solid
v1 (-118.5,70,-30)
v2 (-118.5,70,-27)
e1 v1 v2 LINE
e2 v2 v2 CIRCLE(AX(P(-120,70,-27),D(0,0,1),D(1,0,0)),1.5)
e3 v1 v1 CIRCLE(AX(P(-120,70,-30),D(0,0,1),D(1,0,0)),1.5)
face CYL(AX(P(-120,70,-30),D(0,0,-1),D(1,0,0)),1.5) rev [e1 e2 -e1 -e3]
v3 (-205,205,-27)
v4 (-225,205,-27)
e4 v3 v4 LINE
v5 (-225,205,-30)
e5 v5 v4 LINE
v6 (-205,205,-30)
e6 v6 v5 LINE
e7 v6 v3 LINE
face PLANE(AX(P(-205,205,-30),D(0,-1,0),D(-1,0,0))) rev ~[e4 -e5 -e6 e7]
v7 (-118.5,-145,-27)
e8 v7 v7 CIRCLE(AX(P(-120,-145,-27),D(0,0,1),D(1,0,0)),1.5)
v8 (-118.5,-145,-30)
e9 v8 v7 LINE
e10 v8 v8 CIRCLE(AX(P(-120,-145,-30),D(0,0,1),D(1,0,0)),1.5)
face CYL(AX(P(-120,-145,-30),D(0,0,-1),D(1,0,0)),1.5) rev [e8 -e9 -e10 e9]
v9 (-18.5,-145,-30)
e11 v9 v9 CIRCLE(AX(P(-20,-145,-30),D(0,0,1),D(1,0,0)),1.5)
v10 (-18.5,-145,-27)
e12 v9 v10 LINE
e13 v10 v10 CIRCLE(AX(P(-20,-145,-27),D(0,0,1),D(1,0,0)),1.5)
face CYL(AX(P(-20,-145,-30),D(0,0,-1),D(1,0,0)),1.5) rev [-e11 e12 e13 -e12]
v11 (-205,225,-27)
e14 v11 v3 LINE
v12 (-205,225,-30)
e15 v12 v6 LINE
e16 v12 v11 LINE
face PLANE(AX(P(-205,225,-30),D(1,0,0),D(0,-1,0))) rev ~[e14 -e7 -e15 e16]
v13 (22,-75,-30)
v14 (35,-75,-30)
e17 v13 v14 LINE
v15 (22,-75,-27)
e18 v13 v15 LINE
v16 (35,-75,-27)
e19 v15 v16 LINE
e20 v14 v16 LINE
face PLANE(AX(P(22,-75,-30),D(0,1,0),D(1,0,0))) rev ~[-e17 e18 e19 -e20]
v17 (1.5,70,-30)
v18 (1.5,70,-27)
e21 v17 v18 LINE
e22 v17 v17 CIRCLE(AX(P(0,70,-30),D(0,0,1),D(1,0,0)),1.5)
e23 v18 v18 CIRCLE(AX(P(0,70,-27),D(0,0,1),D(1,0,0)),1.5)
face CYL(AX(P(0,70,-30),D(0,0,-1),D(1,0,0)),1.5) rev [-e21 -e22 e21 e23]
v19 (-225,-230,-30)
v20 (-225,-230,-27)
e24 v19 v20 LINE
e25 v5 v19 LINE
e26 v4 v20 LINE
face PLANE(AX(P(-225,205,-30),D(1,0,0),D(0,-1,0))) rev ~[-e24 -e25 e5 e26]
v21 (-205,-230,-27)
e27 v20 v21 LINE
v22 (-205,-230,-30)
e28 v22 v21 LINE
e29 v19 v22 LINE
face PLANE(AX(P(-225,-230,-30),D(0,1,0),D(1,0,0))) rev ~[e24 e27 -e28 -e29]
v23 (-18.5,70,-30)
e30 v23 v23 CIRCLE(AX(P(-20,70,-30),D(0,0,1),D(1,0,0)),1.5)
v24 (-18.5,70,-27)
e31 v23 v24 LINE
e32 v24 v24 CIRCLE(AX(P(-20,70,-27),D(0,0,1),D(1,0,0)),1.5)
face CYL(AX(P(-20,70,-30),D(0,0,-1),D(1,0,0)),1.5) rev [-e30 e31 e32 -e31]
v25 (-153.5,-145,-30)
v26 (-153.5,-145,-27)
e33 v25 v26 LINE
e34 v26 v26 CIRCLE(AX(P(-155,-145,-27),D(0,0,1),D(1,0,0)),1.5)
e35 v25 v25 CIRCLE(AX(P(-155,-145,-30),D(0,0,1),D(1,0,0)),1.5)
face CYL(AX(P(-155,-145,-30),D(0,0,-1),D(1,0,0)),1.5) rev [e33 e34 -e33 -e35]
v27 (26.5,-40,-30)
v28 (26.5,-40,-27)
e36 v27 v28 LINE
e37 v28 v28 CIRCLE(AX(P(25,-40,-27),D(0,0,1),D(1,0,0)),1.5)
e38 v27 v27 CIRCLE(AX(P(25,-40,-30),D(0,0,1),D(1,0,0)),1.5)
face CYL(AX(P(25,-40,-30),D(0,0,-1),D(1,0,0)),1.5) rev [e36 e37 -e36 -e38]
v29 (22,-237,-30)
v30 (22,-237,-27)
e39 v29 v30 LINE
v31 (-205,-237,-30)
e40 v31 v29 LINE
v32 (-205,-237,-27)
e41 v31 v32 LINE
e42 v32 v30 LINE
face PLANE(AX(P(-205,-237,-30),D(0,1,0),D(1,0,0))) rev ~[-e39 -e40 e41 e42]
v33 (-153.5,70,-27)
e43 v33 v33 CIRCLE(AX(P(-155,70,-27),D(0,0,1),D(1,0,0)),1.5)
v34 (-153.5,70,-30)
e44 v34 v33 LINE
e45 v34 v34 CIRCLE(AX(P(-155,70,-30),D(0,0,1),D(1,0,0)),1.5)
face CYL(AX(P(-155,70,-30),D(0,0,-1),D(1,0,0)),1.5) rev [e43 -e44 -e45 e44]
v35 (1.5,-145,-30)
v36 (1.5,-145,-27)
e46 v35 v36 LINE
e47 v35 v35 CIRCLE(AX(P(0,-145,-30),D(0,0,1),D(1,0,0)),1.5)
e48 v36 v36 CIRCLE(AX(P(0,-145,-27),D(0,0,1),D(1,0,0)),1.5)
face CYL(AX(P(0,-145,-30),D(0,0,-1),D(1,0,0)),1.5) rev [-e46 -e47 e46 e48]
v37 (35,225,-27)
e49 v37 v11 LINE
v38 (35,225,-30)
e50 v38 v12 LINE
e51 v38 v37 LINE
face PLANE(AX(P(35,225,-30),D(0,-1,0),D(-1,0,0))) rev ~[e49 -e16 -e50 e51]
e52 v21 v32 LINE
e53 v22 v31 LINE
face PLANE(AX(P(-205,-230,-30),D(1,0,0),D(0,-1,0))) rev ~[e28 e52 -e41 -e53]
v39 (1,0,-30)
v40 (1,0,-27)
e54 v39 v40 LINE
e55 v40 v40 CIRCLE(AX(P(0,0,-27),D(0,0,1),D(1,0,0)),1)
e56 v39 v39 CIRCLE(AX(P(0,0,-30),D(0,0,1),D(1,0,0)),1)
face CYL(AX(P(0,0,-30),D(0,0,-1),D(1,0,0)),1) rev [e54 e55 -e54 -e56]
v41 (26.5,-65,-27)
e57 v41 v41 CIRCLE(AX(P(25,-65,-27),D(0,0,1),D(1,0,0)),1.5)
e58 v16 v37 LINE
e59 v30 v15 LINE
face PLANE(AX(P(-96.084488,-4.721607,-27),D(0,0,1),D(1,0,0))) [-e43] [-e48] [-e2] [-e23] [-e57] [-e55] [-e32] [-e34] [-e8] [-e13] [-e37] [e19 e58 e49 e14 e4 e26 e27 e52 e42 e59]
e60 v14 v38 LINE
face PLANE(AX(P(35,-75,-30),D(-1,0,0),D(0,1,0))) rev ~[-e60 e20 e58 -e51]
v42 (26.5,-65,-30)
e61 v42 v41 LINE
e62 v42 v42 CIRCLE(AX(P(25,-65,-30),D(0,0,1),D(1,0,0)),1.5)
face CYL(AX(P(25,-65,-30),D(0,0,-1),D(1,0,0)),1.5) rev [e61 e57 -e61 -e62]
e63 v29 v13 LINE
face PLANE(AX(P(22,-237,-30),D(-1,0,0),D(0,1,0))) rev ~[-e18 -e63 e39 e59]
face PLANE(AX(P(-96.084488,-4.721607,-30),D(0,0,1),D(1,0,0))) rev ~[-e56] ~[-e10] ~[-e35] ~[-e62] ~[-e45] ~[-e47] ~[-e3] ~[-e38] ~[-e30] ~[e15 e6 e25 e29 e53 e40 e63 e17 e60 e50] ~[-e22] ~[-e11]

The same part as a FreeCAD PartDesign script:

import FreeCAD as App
import Part
import Sketcher
from FreeCAD import Vector

doc = App.newDocument("Part")
body = doc.addObject("PartDesign::Body", "Body")

# Sketch on XY plane
sketch1 = body.newObject("Sketcher::SketchObject", "Sketch")
sketch1.AttachmentSupport = (doc.getObject("XY_Plane"), [""])
sketch1.MapMode = "FlatFace"
sketch1.addGeometry(Part.LineSegment(Vector(-205, -237, 0), Vector(22, -237, 0)), False)
sketch1.addGeometry(Part.LineSegment(Vector(22, -237, 0), Vector(22, -75, 0)), False)
sketch1.addGeometry(Part.LineSegment(Vector(22, -75, 0), Vector(35, -75, 0)), False)
sketch1.addGeometry(Part.LineSegment(Vector(35, -75, 0), Vector(35, 225, 0)), False)
sketch1.addGeometry(Part.LineSegment(Vector(35, 225, 0), Vector(-205, 225, 0)), False)
sketch1.addGeometry(Part.LineSegment(Vector(-205, 225, 0), Vector(-205, 205, 0)), False)
sketch1.addGeometry(Part.LineSegment(Vector(-205, 205, 0), Vector(-225, 205, 0)), False)
sketch1.addGeometry(Part.LineSegment(Vector(-225, 205, 0), Vector(-225, -230, 0)), False)
sketch1.addGeometry(Part.LineSegment(Vector(-225, -230, 0), Vector(-205, -230, 0)), False)
sketch1.addGeometry(Part.LineSegment(Vector(-205, -230, 0), Vector(-205, -237, 0)), False)
sketch1.addGeometry(Part.Circle(Vector(-155, -145, 0), Vector(0, 0, 1), 1.5), False)
sketch1.addGeometry(Part.Circle(Vector(-120, -145, 0), Vector(0, 0, 1), 1.5), False)
sketch1.addGeometry(Part.Circle(Vector(-20, -145, 0), Vector(0, 0, 1), 1.5), False)
sketch1.addGeometry(Part.Circle(Vector(0, -145, 0), Vector(0, 0, 1), 1.5), False)
sketch1.addGeometry(Part.Circle(Vector(25, -65, 0), Vector(0, 0, 1), 1.5), False)
sketch1.addGeometry(Part.Circle(Vector(25, -40, 0), Vector(0, 0, 1), 1.5), False)
sketch1.addGeometry(Part.Circle(Vector(-155, 70, 0), Vector(0, 0, 1), 1.5), False)
sketch1.addGeometry(Part.Circle(Vector(-120, 70, 0), Vector(0, 0, 1), 1.5), False)
sketch1.addGeometry(Part.Circle(Vector(0, 0, 0), Vector(0, 0, 1), 1), False)
sketch1.addGeometry(Part.Circle(Vector(-20, 70, 0), Vector(0, 0, 1), 1.5), False)
sketch1.addGeometry(Part.Circle(Vector(0, 70, 0), Vector(0, 0, 1), 1.5), False)
sketch1.addConstraint(Sketcher.Constraint("Coincident", 0, 2, 1, 1))
sketch1.addConstraint(Sketcher.Constraint("Coincident", 1, 2, 2, 1))
sketch1.addConstraint(Sketcher.Constraint("Coincident", 2, 2, 3, 1))
sketch1.addConstraint(Sketcher.Constraint("Coincident", 3, 2, 4, 1))
sketch1.addConstraint(Sketcher.Constraint("Coincident", 4, 2, 5, 1))
sketch1.addConstraint(Sketcher.Constraint("Coincident", 5, 2, 6, 1))
sketch1.addConstraint(Sketcher.Constraint("Coincident", 6, 2, 7, 1))
sketch1.addConstraint(Sketcher.Constraint("Coincident", 7, 2, 8, 1))
sketch1.addConstraint(Sketcher.Constraint("Coincident", 8, 2, 9, 1))
sketch1.addConstraint(Sketcher.Constraint("Coincident", 9, 2, 0, 1))
sketch1.addConstraint(Sketcher.Constraint("Horizontal", 0))
sketch1.addConstraint(Sketcher.Constraint("Vertical", 1))
sketch1.addConstraint(Sketcher.Constraint("Horizontal", 2))
sketch1.addConstraint(Sketcher.Constraint("Vertical", 3))
sketch1.addConstraint(Sketcher.Constraint("Horizontal", 4))
sketch1.addConstraint(Sketcher.Constraint("Vertical", 5))
sketch1.addConstraint(Sketcher.Constraint("Horizontal", 6))
sketch1.addConstraint(Sketcher.Constraint("Vertical", 7))
sketch1.addConstraint(Sketcher.Constraint("Horizontal", 8))
sketch1.addConstraint(Sketcher.Constraint("Vertical", 9))
sketch1.addConstraint(Sketcher.Constraint("Coincident", 18, 3, -1, 1))
sketch1.addConstraint(Sketcher.Constraint("Equal", 10, 11))
sketch1.addConstraint(Sketcher.Constraint("Equal", 11, 12))
sketch1.addConstraint(Sketcher.Constraint("Equal", 12, 13))
sketch1.addConstraint(Sketcher.Constraint("Equal", 13, 14))
sketch1.addConstraint(Sketcher.Constraint("Equal", 14, 15))
sketch1.addConstraint(Sketcher.Constraint("Equal", 15, 16))
sketch1.addConstraint(Sketcher.Constraint("Equal", 16, 17))
sketch1.addConstraint(Sketcher.Constraint("Equal", 17, 19))
sketch1.addConstraint(Sketcher.Constraint("Equal", 19, 20))
sketch1.addConstraint(Sketcher.Constraint("PointOnObject", 13, 3, -2))
sketch1.addConstraint(Sketcher.Constraint("PointOnObject", 20, 3, -2))
sketch1.addConstraint(Sketcher.Constraint("Horizontal", 10, 3, 11, 3))
sketch1.addConstraint(Sketcher.Constraint("Horizontal", 11, 3, 12, 3))
sketch1.addConstraint(Sketcher.Constraint("Horizontal", 12, 3, 13, 3))
sketch1.addConstraint(Sketcher.Constraint("Horizontal", 16, 3, 17, 3))
sketch1.addConstraint(Sketcher.Constraint("Horizontal", 17, 3, 19, 3))
sketch1.addConstraint(Sketcher.Constraint("Horizontal", 19, 3, 20, 3))
sketch1.addConstraint(Sketcher.Constraint("Vertical", 14, 3, 15, 3))
sketch1.addConstraint(Sketcher.Constraint("Vertical", 10, 3, 16, 3))
sketch1.addConstraint(Sketcher.Constraint("Vertical", 11, 3, 17, 3))
sketch1.addConstraint(Sketcher.Constraint("Vertical", 12, 3, 19, 3))
sketch1.addConstraint(Sketcher.Constraint("Vertical", 5, 2, 8, 2))
sketch1.addConstraint(Sketcher.Constraint("Equal", 8, 5))
sketch1.addConstraint(Sketcher.Constraint("Diameter", 10, 3.0))
sketch1.addConstraint(Sketcher.Constraint("Diameter", 18, 2.0))
sketch1.addConstraint(Sketcher.Constraint("DistanceX", 0, 1, 0, 2, 227.0))
sketch1.addConstraint(Sketcher.Constraint("DistanceX", 2, 1, 2, 2, 13.0))
sketch1.addConstraint(Sketcher.Constraint("DistanceX", 6, 2, 6, 1, 20.0))
sketch1.addConstraint(Sketcher.Constraint("DistanceY", 1, 1, 1, 2, 162.0))
sketch1.addConstraint(Sketcher.Constraint("DistanceY", 3, 1, 3, 2, 300.0))
sketch1.addConstraint(Sketcher.Constraint("DistanceY", 7, 2, 7, 1, 435.0))
sketch1.addConstraint(Sketcher.Constraint("DistanceX", 10, 3, -1, 1, 155.0))
sketch1.addConstraint(Sketcher.Constraint("DistanceY", 10, 3, -1, 1, 145.0))
sketch1.addConstraint(Sketcher.Constraint("DistanceX", 11, 3, -1, 1, 120.0))
sketch1.addConstraint(Sketcher.Constraint("DistanceX", 12, 3, -1, 1, 20.0))
sketch1.addConstraint(Sketcher.Constraint("DistanceX", -1, 1, 14, 3, 25.0))
sketch1.addConstraint(Sketcher.Constraint("DistanceY", 14, 3, -1, 1, 65.0))
sketch1.addConstraint(Sketcher.Constraint("DistanceY", 15, 3, -1, 1, 40.0))
sketch1.addConstraint(Sketcher.Constraint("DistanceY", -1, 1, 16, 3, 70.0))
sketch1.addConstraint(Sketcher.Constraint("DistanceX", -1, 1, 0, 2, 22.0))
sketch1.addConstraint(Sketcher.Constraint("DistanceY", 0, 2, -1, 1, 237.0))
pad1 = body.newObject("PartDesign::Pad", "Pad")
pad1.Profile = sketch1
pad1.Length = 3
body2 = doc.addObject("PartDesign::Body", "Body001")
doc.recompute()

body.Placement = App.Placement(Vector(0, 0, -30), App.Rotation(Vector(0, 0, 1), 0))
boolean = body2.newObject("PartDesign::Boolean", "Boolean")
boolean.Type = "Fuse"
boolean.addObjects([body])

doc.recompute()
